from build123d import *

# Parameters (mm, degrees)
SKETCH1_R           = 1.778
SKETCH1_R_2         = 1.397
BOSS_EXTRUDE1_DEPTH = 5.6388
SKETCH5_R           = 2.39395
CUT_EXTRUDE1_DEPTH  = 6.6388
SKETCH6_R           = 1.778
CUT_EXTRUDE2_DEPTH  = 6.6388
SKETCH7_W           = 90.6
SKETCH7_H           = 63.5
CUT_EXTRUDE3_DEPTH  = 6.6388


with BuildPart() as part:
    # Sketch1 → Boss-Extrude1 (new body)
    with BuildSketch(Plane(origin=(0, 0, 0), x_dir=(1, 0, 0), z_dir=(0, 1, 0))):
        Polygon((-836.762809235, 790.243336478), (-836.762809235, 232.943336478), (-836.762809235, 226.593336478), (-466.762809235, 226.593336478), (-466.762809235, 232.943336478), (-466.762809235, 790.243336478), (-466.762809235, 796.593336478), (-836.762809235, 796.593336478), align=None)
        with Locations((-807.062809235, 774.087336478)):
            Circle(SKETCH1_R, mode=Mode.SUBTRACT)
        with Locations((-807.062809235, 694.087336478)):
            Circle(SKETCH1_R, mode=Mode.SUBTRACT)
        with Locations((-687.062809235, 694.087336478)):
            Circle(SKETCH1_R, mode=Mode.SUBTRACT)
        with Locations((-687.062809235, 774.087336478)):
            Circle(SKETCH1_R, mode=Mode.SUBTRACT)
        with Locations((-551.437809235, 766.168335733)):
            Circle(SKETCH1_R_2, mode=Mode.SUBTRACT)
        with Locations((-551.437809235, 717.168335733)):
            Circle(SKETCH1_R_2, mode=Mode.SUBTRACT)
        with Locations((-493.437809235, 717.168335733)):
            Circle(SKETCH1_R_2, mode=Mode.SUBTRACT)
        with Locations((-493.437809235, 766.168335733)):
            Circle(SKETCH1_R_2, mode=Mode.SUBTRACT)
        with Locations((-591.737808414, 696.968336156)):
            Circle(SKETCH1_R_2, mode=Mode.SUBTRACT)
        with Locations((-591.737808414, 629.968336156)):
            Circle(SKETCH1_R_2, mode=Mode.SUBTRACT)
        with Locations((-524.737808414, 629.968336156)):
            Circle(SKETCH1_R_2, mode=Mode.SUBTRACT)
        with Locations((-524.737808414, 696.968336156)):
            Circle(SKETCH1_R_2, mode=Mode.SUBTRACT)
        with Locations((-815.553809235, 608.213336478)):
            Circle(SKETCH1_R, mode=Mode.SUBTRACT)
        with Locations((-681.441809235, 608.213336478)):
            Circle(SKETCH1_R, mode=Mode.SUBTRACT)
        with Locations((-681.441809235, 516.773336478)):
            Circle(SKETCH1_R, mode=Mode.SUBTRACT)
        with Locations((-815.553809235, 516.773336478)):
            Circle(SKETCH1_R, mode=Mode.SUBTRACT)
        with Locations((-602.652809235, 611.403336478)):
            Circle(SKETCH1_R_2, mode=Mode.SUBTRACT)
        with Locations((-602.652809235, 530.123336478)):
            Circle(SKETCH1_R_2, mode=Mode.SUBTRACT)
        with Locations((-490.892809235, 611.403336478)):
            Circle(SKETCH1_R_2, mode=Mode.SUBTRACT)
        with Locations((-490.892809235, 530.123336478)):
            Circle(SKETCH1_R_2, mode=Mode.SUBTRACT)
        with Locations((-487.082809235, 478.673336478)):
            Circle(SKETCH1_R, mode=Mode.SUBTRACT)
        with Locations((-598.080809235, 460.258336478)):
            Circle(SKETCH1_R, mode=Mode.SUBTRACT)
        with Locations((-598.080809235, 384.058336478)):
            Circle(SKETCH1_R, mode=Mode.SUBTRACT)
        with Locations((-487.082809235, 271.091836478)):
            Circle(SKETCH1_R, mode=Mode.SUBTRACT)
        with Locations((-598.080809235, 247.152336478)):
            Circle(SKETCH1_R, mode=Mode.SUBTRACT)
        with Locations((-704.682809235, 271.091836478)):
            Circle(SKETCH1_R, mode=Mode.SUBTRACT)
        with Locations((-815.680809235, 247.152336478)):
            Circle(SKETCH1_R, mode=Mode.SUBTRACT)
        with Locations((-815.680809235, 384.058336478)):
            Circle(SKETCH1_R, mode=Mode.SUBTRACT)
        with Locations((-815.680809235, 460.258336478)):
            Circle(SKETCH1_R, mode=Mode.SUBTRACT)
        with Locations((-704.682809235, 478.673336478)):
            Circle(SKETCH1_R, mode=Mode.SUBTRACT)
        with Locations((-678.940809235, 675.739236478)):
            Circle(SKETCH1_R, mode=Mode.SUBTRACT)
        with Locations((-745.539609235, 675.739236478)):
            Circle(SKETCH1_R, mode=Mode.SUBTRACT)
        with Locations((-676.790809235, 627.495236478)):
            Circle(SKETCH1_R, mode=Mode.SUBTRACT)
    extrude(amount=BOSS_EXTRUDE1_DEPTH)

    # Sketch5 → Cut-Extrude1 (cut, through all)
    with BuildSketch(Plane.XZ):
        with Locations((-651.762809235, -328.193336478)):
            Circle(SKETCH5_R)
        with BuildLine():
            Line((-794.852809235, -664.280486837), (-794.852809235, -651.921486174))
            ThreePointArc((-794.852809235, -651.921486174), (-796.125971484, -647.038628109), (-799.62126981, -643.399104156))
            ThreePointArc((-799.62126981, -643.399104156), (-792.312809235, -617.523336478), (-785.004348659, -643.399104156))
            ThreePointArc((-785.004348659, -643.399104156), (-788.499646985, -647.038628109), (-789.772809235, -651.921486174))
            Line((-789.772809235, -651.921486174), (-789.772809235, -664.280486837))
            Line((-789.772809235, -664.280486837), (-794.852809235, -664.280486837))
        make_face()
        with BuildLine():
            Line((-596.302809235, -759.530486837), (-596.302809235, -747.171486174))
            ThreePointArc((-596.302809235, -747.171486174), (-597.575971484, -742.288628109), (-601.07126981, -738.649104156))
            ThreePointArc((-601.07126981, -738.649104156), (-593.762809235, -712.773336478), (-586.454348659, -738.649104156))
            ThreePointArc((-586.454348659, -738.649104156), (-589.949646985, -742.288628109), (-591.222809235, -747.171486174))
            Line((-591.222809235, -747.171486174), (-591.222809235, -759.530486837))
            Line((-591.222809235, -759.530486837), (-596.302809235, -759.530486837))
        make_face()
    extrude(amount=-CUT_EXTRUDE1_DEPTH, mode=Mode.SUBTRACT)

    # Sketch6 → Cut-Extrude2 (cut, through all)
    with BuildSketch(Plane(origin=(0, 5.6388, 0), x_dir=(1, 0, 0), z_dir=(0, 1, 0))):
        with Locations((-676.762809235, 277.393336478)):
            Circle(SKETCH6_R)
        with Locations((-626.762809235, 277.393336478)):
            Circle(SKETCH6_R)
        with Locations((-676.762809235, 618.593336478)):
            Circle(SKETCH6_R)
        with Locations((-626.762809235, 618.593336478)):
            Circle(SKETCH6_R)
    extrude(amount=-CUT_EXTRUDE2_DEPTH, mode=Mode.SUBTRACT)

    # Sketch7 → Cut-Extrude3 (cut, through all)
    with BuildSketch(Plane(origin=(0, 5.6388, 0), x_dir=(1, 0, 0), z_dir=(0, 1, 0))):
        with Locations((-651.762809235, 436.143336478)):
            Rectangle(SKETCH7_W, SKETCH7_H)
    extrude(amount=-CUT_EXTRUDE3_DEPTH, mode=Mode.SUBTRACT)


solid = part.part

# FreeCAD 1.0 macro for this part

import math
import FreeCAD as App
import Part
import Sketcher

V = App.Vector
Q = App.Units.Quantity


def add_polygon(sketch, points):
    """Adds a closed chain of lines whose ends are joined by coincident constraints."""
    first, n = sketch.GeometryCount, len(points)
    for a, b in zip(points, points[1:] + points[:1]):
        sketch.addGeometry(Part.LineSegment(App.Vector(*a, 0), App.Vector(*b, 0)), False)
    for i in range(n):
        sketch.addConstraint(Sketcher.Constraint("Coincident", first + i, 2, first + (i + 1) % n, 1))

doc = App.newDocument("Part")
body = doc.addObject("PartDesign::Body", "Body")

sketch1 = doc.addObject("Sketcher::SketchObject", "Sketch")
body.addObject(sketch1)
sketch1.AttachmentSupport = (doc.XZ_Plane, [""])
sketch1.MapMode = "FlatFace"
add_polygon(sketch1, [(-836.8, -226.6), (-466.8, -226.6), (-466.8, -796.6), (-836.8, -796.6)])
sketch1.addGeometry(Part.Circle(V(-815.7, -247.2, 0), V(0, 0, 1), 1.8), False)
sketch1.addGeometry(Part.Circle(V(-704.7, -271.1, 0), V(0, 0, 1), 1.8), False)
sketch1.addGeometry(Part.Circle(V(-815.7, -384.1, 0), V(0, 0, 1), 1.8), False)
sketch1.addGeometry(Part.Circle(V(-815.7, -460.3, 0), V(0, 0, 1), 1.8), False)
sketch1.addGeometry(Part.Circle(V(-704.7, -478.7, 0), V(0, 0, 1), 1.8), False)
sketch1.addGeometry(Part.Circle(V(-598.1, -247.2, 0), V(0, 0, 1), 1.8), False)
sketch1.addGeometry(Part.Circle(V(-487.1, -271.1, 0), V(0, 0, 1), 1.8), False)
sketch1.addGeometry(Part.Circle(V(-598.1, -384.1, 0), V(0, 0, 1), 1.8), False)
sketch1.addGeometry(Part.Circle(V(-598.1, -460.3, 0), V(0, 0, 1), 1.8), False)
sketch1.addGeometry(Part.Circle(V(-487.1, -478.7, 0), V(0, 0, 1), 1.8), False)
sketch1.addGeometry(Part.Circle(V(-815.6, -516.8, 0), V(0, 0, 1), 1.8), False)
sketch1.addGeometry(Part.Circle(V(-815.6, -608.2, 0), V(0, 0, 1), 1.8), False)
sketch1.addGeometry(Part.Circle(V(-681.4, -516.8, 0), V(0, 0, 1), 1.8), False)
sketch1.addGeometry(Part.Circle(V(-681.4, -608.2, 0), V(0, 0, 1), 1.8), False)
sketch1.addGeometry(Part.Circle(V(-676.8, -627.5, 0), V(0, 0, 1), 1.8), False)
sketch1.addGeometry(Part.Circle(V(-807.1, -694.1, 0), V(0, 0, 1), 1.8), False)
sketch1.addGeometry(Part.Circle(V(-745.5, -675.7, 0), V(0, 0, 1), 1.8), False)
sketch1.addGeometry(Part.Circle(V(-807.1, -774.1, 0), V(0, 0, 1), 1.8), False)
sketch1.addGeometry(Part.Circle(V(-678.9, -675.7, 0), V(0, 0, 1), 1.8), False)
sketch1.addGeometry(Part.Circle(V(-687.1, -694.1, 0), V(0, 0, 1), 1.8), False)
sketch1.addGeometry(Part.Circle(V(-687.1, -774.1, 0), V(0, 0, 1), 1.8), False)
sketch1.addGeometry(Part.Circle(V(-602.7, -530.1, 0), V(0, 0, 1), 1.4), False)
sketch1.addGeometry(Part.Circle(V(-602.7, -611.4, 0), V(0, 0, 1), 1.4), False)
sketch1.addGeometry(Part.Circle(V(-591.7, -630, 0), V(0, 0, 1), 1.4), False)
sketch1.addGeometry(Part.Circle(V(-490.9, -530.1, 0), V(0, 0, 1), 1.4), False)
sketch1.addGeometry(Part.Circle(V(-524.7, -630, 0), V(0, 0, 1), 1.4), False)
sketch1.addGeometry(Part.Circle(V(-490.9, -611.4, 0), V(0, 0, 1), 1.4), False)
sketch1.addGeometry(Part.Circle(V(-591.7, -697, 0), V(0, 0, 1), 1.4), False)
sketch1.addGeometry(Part.Circle(V(-524.7, -697, 0), V(0, 0, 1), 1.4), False)
sketch1.addGeometry(Part.Circle(V(-551.4, -717.2, 0), V(0, 0, 1), 1.4), False)
sketch1.addGeometry(Part.Circle(V(-551.4, -766.2, 0), V(0, 0, 1), 1.4), False)
sketch1.addGeometry(Part.Circle(V(-493.4, -717.2, 0), V(0, 0, 1), 1.4), False)
sketch1.addGeometry(Part.Circle(V(-493.4, -766.2, 0), V(0, 0, 1), 1.4), False)
sketch1.addConstraint([
    Sketcher.Constraint("Horizontal", 0),
    Sketcher.Constraint("Vertical", 1),
    Sketcher.Constraint("Horizontal", 2),
    Sketcher.Constraint("Vertical", 3),
    Sketcher.Constraint("Equal", 4, 5),
    Sketcher.Constraint("Equal", 5, 6),
    Sketcher.Constraint("Equal", 6, 7),
    Sketcher.Constraint("Equal", 7, 8),
    Sketcher.Constraint("Equal", 8, 9),
    Sketcher.Constraint("Equal", 9, 10),
    Sketcher.Constraint("Equal", 10, 11),
    Sketcher.Constraint("Equal", 11, 12),
    Sketcher.Constraint("Equal", 12, 13),
    Sketcher.Constraint("Equal", 13, 14),
    Sketcher.Constraint("Equal", 14, 15),
    Sketcher.Constraint("Equal", 15, 16),
    Sketcher.Constraint("Equal", 16, 17),
    Sketcher.Constraint("Equal", 17, 18),
    Sketcher.Constraint("Equal", 18, 19),
    Sketcher.Constraint("Equal", 19, 20),
    Sketcher.Constraint("Equal", 20, 21),
    Sketcher.Constraint("Equal", 21, 22),
    Sketcher.Constraint("Equal", 22, 23),
    Sketcher.Constraint("Equal", 23, 24),
    Sketcher.Constraint("Equal", 25, 26),
    Sketcher.Constraint("Equal", 26, 27),
    Sketcher.Constraint("Equal", 27, 28),
    Sketcher.Constraint("Equal", 28, 29),
    Sketcher.Constraint("Equal", 29, 30),
    Sketcher.Constraint("Equal", 30, 31),
    Sketcher.Constraint("Equal", 31, 32),
    Sketcher.Constraint("Equal", 32, 33),
    Sketcher.Constraint("Equal", 33, 34),
    Sketcher.Constraint("Equal", 34, 35),
    Sketcher.Constraint("Equal", 35, 36),
    Sketcher.Constraint("Horizontal", 4, 3, 9, 3),
    Sketcher.Constraint("Horizontal", 5, 3, 10, 3),
    Sketcher.Constraint("Horizontal", 6, 3, 11, 3),
    Sketcher.Constraint("Horizontal", 7, 3, 12, 3),
    Sketcher.Constraint("Horizontal", 8, 3, 13, 3),
    Sketcher.Constraint("Horizontal", 14, 3, 16, 3),
    Sketcher.Constraint("Horizontal", 15, 3, 17, 3),
    Sketcher.Constraint("Horizontal", 20, 3, 22, 3),
    Sketcher.Constraint("Horizontal", 19, 3, 23, 3),
    Sketcher.Constraint("Horizontal", 21, 3, 24, 3),
    Sketcher.Constraint("Horizontal", 25, 3, 28, 3),
    Sketcher.Constraint("Horizontal", 27, 3, 29, 3),
    Sketcher.Constraint("Horizontal", 26, 3, 30, 3),
    Sketcher.Constraint("Horizontal", 31, 3, 32, 3),
    Sketcher.Constraint("Horizontal", 33, 3, 35, 3),
    Sketcher.Constraint("Horizontal", 34, 3, 36, 3),
    Sketcher.Constraint("Vertical", 4, 3, 6, 3),
    Sketcher.Constraint("Vertical", 6, 3, 7, 3),
    Sketcher.Constraint("Vertical", 5, 3, 8, 3),
    Sketcher.Constraint("Vertical", 9, 3, 11, 3),
    Sketcher.Constraint("Vertical", 11, 3, 12, 3),
    Sketcher.Constraint("Vertical", 10, 3, 13, 3),
    Sketcher.Constraint("Vertical", 14, 3, 15, 3),
    Sketcher.Constraint("Vertical", 16, 3, 17, 3),
    Sketcher.Constraint("Vertical", 19, 3, 21, 3),
    Sketcher.Constraint("Vertical", 23, 3, 24, 3),
    Sketcher.Constraint("Vertical", 25, 3, 26, 3),
    Sketcher.Constraint("Vertical", 28, 3, 30, 3),
    Sketcher.Constraint("Vertical", 27, 3, 31, 3),
    Sketcher.Constraint("Vertical", 29, 3, 32, 3),
    Sketcher.Constraint("Vertical", 33, 3, 34, 3),
    Sketcher.Constraint("Vertical", 35, 3, 36, 3),
    Sketcher.Constraint("Diameter", 4, Q("0.14 in")),
    Sketcher.Constraint("Diameter", 25, Q("0.11 in")),
    Sketcher.Constraint("DistanceY", 7, 3, 6, 3, Q("3 in")),
    Sketcher.Constraint("DistanceY", 14, 3, 8, 3, Q("1.5 in")),
    Sketcher.Constraint("DistanceY", 15, 3, 14, 3, Q("3.6 in")),
    Sketcher.Constraint("DistanceY", 26, 3, 25, 3, Q("3.2 in")),
    Sketcher.Constraint("DistanceX", 25, 3, 28, 3, Q("4.4 in")),
    Sketcher.Constraint("DistanceX", 10, 3, 0, 2, Q("0.8 in")),
    Sketcher.Constraint("DistanceX", 3, 2, 5, 3, Q("5.2 in")),
    Sketcher.Constraint("DistanceX", 4, 3, 5, 3, Q("4.37 in")),
    Sketcher.Constraint("DistanceY", 6, 3, 4, 3, Q("5.39 in")),
    Sketcher.Constraint("DistanceX", 9, 3, 10, 3, Q("4.37 in")),
    Sketcher.Constraint("DistanceX", 14, 3, 16, 3, Q("5.28 in")),
    Sketcher.Constraint("DistanceX", 25, 3, 12, 3, Q("0.18 in")),
    Sketcher.Constraint("DistanceY", 8, 3, 7, 3, Q("0.725 in")),
    Sketcher.Constraint("DistanceX", 7, 3, 14, 3, Q("0.005 in")),
    Sketcher.Constraint("DistanceX", 20, 3, 22, 3, Q("2.622 in")),
    Sketcher.Constraint("DistanceX", 0, 1, 0, 2, Q("370 mm")),
    Sketcher.Constraint("DistanceY", 1, 2, 1, 1, Q("570 mm")),
    Sketcher.Constraint("DistanceY", 5, 3, 4, 3, Q("0.9425 in")),
    Sketcher.Constraint("DistanceY", 20, 3, 17, 3, Q("2.6585 in")),
    Sketcher.Constraint("DistanceX", 17, 3, 18, 3, Q("4.651 mm")),
    Sketcher.Constraint("DistanceY", 18, 3, 17, 3, Q("19.2819 mm")),
    Sketcher.Constraint("DistanceX", 15, 3, 19, 3, Q("8.491 mm")),
    Sketcher.Constraint("DistanceY", 19, 3, 15, 3, Q("85.874 mm")),
    Sketcher.Constraint("DistanceX", 19, 3, 20, 3, Q("61.5232 mm")),
    Sketcher.Constraint("DistanceY", 21, 3, 19, 3, Q("80 mm")),
    Sketcher.Constraint("DistanceX", 23, 3, 22, 3, Q("8.122 mm")),
    Sketcher.Constraint("DistanceY", 25, 3, 12, 3, Q("69.865 mm")),
    Sketcher.Constraint("DistanceX", 26, 3, 27, 3, Q("10.915001 mm")),
    Sketcher.Constraint("DistanceY", 27, 3, 26, 3, Q("18.565 mm")),
    Sketcher.Constraint("DistanceX", 27, 3, 29, 3, Q("67 mm")),
    Sketcher.Constraint("DistanceY", 31, 3, 27, 3, Q("67 mm")),
    Sketcher.Constraint("DistanceX", 33, 3, 32, 3, Q("26.700001 mm")),
    Sketcher.Constraint("DistanceY", 33, 3, 32, 3, Q("20.2 mm")),
    Sketcher.Constraint("DistanceY", 34, 3, 33, 3, Q("49 mm")),
    Sketcher.Constraint("DistanceX", 32, 3, 35, 3, Q("31.299999 mm")),
    Sketcher.Constraint("DistanceY", 10, 3, 0, 2, Q("44.4985 mm")),
    Sketcher.Constraint("DistanceX", 4, 3, -1, 1, Q("815.680809 mm")),
    Sketcher.Constraint("DistanceY", 4, 3, -1, 1, Q("247.152336 mm")),
])
pad1 = doc.addObject("PartDesign::Pad", "Pad")
body.addObject(pad1)
pad1.Profile = sketch1
pad1.Length = Q("0.222 in")
pad1.Reversed = True

sketch2 = doc.addObject("Sketcher::SketchObject", "Sketch001")
body.addObject(sketch2)
sketch2.AttachmentSupport = (doc.XZ_Plane, [""])
sketch2.MapMode = "FlatFace"
sketch2.addGeometry([
    Part.Circle(V(-651.8, -328.2, 0), V(0, 0, 1), 2.4),
    Part.LineSegment(V(-794.9, -651.9, 0), V(-794.9, -664.3, 0)),
    Part.LineSegment(V(-794.9, -664.3, 0), V(-789.8, -664.3, 0)),
    Part.LineSegment(V(-789.8, -664.3, 0), V(-789.8, -651.9, 0)),
    Part.ArcOfCircle(Part.Circle(V(-779.8, -651.9, 0), V(0, 0, 1), 10), math.radians(122), math.radians(180)),
    Part.ArcOfCircle(Part.Circle(V(-792.3, -631.5, 0), V(0, 0, 1), 14), math.radians(-58), math.radians(238)),
    Part.ArcOfCircle(Part.Circle(V(-804.9, -651.9, 0), V(0, 0, 1), 10), math.radians(0), math.radians(58)),
    Part.LineSegment(V(-596.3, -747.2, 0), V(-596.3, -759.5, 0)),
    Part.LineSegment(V(-596.3, -759.5, 0), V(-591.2, -759.5, 0)),
    Part.LineSegment(V(-591.2, -759.5, 0), V(-591.2, -747.2, 0)),
    Part.ArcOfCircle(Part.Circle(V(-581.2, -747.2, 0), V(0, 0, 1), 10), math.radians(122), math.radians(180)),
    Part.ArcOfCircle(Part.Circle(V(-593.8, -726.7, 0), V(0, 0, 1), 14), math.radians(-58), math.radians(238)),
    Part.ArcOfCircle(Part.Circle(V(-606.3, -747.2, 0), V(0, 0, 1), 10), math.radians(0), math.radians(58)),
], False)
sketch2.addConstraint([
    Sketcher.Constraint("Coincident", 1, 2, 2, 1),
    Sketcher.Constraint("Coincident", 2, 2, 3, 1),
    Sketcher.Constraint("Tangent", 3, 2, 4, 2),
    Sketcher.Constraint("Tangent", 4, 1, 5, 1),
    Sketcher.Constraint("Tangent", 5, 2, 6, 2),
    Sketcher.Constraint("Tangent", 6, 1, 1, 1),
    Sketcher.Constraint("Coincident", 7, 2, 8, 1),
    Sketcher.Constraint("Coincident", 8, 2, 9, 1),
    Sketcher.Constraint("Tangent", 9, 2, 10, 2),
    Sketcher.Constraint("Tangent", 10, 1, 11, 1),
    Sketcher.Constraint("Tangent", 11, 2, 12, 2),
    Sketcher.Constraint("Tangent", 12, 1, 7, 1),
    Sketcher.Constraint("Vertical", 1),
    Sketcher.Constraint("Horizontal", 2),
    Sketcher.Constraint("Vertical", 3),
    Sketcher.Constraint("Vertical", 7),
    Sketcher.Constraint("Horizontal", 8),
    Sketcher.Constraint("Vertical", 9),
    Sketcher.Constraint("Equal", 4, 6),
    Sketcher.Constraint("Equal", 6, 10),
    Sketcher.Constraint("Equal", 5, 11),
    Sketcher.Constraint("Equal", 10, 12),
    Sketcher.Constraint("Horizontal", 4, 3, 6, 3),
    Sketcher.Constraint("Horizontal", 10, 3, 12, 3),
    Sketcher.Constraint("Equal", 2, 8),
    Sketcher.Constraint("Equal", 3, 7),
    Sketcher.Constraint("Radius", 5, Q("0.55 in")),
    Sketcher.Constraint("DistanceX", 2, 1, 2, 2, Q("0.2 in")),
    Sketcher.Constraint("Diameter", 0, Q("0.1885 in")),
    Sketcher.Constraint("Radius", 4, Q("10 mm")),
    Sketcher.Constraint("DistanceY", 10, 3, 4, 3, Q("3.75 in")),
    Sketcher.Constraint("DistanceY", 1, 2, 1, 1, Q("12.359001 mm")),
    Sketcher.Constraint("DistanceX", 4, 3, 0, 3, Q("128.01 mm")),
    Sketcher.Constraint("DistanceY", 5, 3, 0, 3, Q("303.3 mm")),
    Sketcher.Constraint("DistanceX", 4, 3, 10, 3, Q("198.55 mm")),
    Sketcher.Constraint("DistanceX", 0, 3, -1, 1, Q("651.762809 mm")),
    Sketcher.Constraint("DistanceY", 0, 3, -1, 1, Q("328.193336 mm")),
])
pocket1 = doc.addObject("PartDesign::Pocket", "Pocket")
body.addObject(pocket1)
pocket1.Profile = sketch2
pocket1.Type = "ThroughAll"

sketch3 = doc.addObject("Sketcher::SketchObject", "Sketch002")
body.addObject(sketch3)
sketch3.AttachmentSupport = (doc.XZ_Plane, [""])
sketch3.MapMode = "FlatFace"
sketch3.AttachmentOffset = App.Placement(V(0, 0, -0.222 * 25.4), App.Rotation())
sketch3.addGeometry([
    Part.Circle(V(-676.8, -277.4, 0), V(0, 0, 1), 1.8),
    Part.Circle(V(-626.8, -277.4, 0), V(0, 0, 1), 1.8),
    Part.Circle(V(-676.8, -618.6, 0), V(0, 0, 1), 1.8),
    Part.Circle(V(-626.8, -618.6, 0), V(0, 0, 1), 1.8),
], False)
sketch3.addConstraint([
    Sketcher.Constraint("Equal", 0, 1),
    Sketcher.Constraint("Equal", 1, 2),
    Sketcher.Constraint("Equal", 2, 3),
    Sketcher.Constraint("Horizontal", 0, 3, 1, 3),
    Sketcher.Constraint("Horizontal", 2, 3, 3, 3),
    Sketcher.Constraint("Vertical", 0, 3, 2, 3),
    Sketcher.Constraint("Vertical", 1, 3, 3, 3),
    Sketcher.Constraint("Diameter", 0, Q("0.14 in")),
    Sketcher.Constraint("DistanceX", 0, 3, 1, 3, Q("50 mm")),
    Sketcher.Constraint("DistanceY", 2, 3, 0, 3, Q("341.2 mm")),
    Sketcher.Constraint("DistanceX", 0, 3, -1, 1, Q("676.762809 mm")),
    Sketcher.Constraint("DistanceY", 0, 3, -1, 1, Q("277.393336 mm")),
])
pocket2 = doc.addObject("PartDesign::Pocket", "Pocket001")
body.addObject(pocket2)
pocket2.Profile = sketch3
pocket2.Type = "ThroughAll"
pocket2.Reversed = True

sketch4 = doc.addObject("Sketcher::SketchObject", "Sketch003")
body.addObject(sketch4)
sketch4.AttachmentSupport = (doc.XZ_Plane, [""])
sketch4.MapMode = "FlatFace"
sketch4.AttachmentOffset = App.Placement(V(0, 0, -0.222 * 25.4), App.Rotation())
add_polygon(sketch4, [(-697, -468), (-697, -404), (-606, -404), (-606, -468)])
sketch4.addConstraint([
    Sketcher.Constraint("Vertical", 0),
    Sketcher.Constraint("Horizontal", 1),
    Sketcher.Constraint("Vertical", 2),
    Sketcher.Constraint("Horizontal", 3),
    Sketcher.Constraint("DistanceY", 0, 1, 0, 2, Q("2.5 in")),
    Sketcher.Constraint("DistanceX", 1, 1, 1, 2, Q("90.6 mm")),
    Sketcher.Constraint("DistanceX", 0, 2, -1, 1, Q("697.062809 mm")),
    Sketcher.Constraint("DistanceY", 0, 2, -1, 1, Q("404.393336 mm")),
])
pocket3 = doc.addObject("PartDesign::Pocket", "Pocket002")
body.addObject(pocket3)
pocket3.Profile = sketch4
pocket3.Type = "ThroughAll"
pocket3.Reversed = True

doc.recompute()
